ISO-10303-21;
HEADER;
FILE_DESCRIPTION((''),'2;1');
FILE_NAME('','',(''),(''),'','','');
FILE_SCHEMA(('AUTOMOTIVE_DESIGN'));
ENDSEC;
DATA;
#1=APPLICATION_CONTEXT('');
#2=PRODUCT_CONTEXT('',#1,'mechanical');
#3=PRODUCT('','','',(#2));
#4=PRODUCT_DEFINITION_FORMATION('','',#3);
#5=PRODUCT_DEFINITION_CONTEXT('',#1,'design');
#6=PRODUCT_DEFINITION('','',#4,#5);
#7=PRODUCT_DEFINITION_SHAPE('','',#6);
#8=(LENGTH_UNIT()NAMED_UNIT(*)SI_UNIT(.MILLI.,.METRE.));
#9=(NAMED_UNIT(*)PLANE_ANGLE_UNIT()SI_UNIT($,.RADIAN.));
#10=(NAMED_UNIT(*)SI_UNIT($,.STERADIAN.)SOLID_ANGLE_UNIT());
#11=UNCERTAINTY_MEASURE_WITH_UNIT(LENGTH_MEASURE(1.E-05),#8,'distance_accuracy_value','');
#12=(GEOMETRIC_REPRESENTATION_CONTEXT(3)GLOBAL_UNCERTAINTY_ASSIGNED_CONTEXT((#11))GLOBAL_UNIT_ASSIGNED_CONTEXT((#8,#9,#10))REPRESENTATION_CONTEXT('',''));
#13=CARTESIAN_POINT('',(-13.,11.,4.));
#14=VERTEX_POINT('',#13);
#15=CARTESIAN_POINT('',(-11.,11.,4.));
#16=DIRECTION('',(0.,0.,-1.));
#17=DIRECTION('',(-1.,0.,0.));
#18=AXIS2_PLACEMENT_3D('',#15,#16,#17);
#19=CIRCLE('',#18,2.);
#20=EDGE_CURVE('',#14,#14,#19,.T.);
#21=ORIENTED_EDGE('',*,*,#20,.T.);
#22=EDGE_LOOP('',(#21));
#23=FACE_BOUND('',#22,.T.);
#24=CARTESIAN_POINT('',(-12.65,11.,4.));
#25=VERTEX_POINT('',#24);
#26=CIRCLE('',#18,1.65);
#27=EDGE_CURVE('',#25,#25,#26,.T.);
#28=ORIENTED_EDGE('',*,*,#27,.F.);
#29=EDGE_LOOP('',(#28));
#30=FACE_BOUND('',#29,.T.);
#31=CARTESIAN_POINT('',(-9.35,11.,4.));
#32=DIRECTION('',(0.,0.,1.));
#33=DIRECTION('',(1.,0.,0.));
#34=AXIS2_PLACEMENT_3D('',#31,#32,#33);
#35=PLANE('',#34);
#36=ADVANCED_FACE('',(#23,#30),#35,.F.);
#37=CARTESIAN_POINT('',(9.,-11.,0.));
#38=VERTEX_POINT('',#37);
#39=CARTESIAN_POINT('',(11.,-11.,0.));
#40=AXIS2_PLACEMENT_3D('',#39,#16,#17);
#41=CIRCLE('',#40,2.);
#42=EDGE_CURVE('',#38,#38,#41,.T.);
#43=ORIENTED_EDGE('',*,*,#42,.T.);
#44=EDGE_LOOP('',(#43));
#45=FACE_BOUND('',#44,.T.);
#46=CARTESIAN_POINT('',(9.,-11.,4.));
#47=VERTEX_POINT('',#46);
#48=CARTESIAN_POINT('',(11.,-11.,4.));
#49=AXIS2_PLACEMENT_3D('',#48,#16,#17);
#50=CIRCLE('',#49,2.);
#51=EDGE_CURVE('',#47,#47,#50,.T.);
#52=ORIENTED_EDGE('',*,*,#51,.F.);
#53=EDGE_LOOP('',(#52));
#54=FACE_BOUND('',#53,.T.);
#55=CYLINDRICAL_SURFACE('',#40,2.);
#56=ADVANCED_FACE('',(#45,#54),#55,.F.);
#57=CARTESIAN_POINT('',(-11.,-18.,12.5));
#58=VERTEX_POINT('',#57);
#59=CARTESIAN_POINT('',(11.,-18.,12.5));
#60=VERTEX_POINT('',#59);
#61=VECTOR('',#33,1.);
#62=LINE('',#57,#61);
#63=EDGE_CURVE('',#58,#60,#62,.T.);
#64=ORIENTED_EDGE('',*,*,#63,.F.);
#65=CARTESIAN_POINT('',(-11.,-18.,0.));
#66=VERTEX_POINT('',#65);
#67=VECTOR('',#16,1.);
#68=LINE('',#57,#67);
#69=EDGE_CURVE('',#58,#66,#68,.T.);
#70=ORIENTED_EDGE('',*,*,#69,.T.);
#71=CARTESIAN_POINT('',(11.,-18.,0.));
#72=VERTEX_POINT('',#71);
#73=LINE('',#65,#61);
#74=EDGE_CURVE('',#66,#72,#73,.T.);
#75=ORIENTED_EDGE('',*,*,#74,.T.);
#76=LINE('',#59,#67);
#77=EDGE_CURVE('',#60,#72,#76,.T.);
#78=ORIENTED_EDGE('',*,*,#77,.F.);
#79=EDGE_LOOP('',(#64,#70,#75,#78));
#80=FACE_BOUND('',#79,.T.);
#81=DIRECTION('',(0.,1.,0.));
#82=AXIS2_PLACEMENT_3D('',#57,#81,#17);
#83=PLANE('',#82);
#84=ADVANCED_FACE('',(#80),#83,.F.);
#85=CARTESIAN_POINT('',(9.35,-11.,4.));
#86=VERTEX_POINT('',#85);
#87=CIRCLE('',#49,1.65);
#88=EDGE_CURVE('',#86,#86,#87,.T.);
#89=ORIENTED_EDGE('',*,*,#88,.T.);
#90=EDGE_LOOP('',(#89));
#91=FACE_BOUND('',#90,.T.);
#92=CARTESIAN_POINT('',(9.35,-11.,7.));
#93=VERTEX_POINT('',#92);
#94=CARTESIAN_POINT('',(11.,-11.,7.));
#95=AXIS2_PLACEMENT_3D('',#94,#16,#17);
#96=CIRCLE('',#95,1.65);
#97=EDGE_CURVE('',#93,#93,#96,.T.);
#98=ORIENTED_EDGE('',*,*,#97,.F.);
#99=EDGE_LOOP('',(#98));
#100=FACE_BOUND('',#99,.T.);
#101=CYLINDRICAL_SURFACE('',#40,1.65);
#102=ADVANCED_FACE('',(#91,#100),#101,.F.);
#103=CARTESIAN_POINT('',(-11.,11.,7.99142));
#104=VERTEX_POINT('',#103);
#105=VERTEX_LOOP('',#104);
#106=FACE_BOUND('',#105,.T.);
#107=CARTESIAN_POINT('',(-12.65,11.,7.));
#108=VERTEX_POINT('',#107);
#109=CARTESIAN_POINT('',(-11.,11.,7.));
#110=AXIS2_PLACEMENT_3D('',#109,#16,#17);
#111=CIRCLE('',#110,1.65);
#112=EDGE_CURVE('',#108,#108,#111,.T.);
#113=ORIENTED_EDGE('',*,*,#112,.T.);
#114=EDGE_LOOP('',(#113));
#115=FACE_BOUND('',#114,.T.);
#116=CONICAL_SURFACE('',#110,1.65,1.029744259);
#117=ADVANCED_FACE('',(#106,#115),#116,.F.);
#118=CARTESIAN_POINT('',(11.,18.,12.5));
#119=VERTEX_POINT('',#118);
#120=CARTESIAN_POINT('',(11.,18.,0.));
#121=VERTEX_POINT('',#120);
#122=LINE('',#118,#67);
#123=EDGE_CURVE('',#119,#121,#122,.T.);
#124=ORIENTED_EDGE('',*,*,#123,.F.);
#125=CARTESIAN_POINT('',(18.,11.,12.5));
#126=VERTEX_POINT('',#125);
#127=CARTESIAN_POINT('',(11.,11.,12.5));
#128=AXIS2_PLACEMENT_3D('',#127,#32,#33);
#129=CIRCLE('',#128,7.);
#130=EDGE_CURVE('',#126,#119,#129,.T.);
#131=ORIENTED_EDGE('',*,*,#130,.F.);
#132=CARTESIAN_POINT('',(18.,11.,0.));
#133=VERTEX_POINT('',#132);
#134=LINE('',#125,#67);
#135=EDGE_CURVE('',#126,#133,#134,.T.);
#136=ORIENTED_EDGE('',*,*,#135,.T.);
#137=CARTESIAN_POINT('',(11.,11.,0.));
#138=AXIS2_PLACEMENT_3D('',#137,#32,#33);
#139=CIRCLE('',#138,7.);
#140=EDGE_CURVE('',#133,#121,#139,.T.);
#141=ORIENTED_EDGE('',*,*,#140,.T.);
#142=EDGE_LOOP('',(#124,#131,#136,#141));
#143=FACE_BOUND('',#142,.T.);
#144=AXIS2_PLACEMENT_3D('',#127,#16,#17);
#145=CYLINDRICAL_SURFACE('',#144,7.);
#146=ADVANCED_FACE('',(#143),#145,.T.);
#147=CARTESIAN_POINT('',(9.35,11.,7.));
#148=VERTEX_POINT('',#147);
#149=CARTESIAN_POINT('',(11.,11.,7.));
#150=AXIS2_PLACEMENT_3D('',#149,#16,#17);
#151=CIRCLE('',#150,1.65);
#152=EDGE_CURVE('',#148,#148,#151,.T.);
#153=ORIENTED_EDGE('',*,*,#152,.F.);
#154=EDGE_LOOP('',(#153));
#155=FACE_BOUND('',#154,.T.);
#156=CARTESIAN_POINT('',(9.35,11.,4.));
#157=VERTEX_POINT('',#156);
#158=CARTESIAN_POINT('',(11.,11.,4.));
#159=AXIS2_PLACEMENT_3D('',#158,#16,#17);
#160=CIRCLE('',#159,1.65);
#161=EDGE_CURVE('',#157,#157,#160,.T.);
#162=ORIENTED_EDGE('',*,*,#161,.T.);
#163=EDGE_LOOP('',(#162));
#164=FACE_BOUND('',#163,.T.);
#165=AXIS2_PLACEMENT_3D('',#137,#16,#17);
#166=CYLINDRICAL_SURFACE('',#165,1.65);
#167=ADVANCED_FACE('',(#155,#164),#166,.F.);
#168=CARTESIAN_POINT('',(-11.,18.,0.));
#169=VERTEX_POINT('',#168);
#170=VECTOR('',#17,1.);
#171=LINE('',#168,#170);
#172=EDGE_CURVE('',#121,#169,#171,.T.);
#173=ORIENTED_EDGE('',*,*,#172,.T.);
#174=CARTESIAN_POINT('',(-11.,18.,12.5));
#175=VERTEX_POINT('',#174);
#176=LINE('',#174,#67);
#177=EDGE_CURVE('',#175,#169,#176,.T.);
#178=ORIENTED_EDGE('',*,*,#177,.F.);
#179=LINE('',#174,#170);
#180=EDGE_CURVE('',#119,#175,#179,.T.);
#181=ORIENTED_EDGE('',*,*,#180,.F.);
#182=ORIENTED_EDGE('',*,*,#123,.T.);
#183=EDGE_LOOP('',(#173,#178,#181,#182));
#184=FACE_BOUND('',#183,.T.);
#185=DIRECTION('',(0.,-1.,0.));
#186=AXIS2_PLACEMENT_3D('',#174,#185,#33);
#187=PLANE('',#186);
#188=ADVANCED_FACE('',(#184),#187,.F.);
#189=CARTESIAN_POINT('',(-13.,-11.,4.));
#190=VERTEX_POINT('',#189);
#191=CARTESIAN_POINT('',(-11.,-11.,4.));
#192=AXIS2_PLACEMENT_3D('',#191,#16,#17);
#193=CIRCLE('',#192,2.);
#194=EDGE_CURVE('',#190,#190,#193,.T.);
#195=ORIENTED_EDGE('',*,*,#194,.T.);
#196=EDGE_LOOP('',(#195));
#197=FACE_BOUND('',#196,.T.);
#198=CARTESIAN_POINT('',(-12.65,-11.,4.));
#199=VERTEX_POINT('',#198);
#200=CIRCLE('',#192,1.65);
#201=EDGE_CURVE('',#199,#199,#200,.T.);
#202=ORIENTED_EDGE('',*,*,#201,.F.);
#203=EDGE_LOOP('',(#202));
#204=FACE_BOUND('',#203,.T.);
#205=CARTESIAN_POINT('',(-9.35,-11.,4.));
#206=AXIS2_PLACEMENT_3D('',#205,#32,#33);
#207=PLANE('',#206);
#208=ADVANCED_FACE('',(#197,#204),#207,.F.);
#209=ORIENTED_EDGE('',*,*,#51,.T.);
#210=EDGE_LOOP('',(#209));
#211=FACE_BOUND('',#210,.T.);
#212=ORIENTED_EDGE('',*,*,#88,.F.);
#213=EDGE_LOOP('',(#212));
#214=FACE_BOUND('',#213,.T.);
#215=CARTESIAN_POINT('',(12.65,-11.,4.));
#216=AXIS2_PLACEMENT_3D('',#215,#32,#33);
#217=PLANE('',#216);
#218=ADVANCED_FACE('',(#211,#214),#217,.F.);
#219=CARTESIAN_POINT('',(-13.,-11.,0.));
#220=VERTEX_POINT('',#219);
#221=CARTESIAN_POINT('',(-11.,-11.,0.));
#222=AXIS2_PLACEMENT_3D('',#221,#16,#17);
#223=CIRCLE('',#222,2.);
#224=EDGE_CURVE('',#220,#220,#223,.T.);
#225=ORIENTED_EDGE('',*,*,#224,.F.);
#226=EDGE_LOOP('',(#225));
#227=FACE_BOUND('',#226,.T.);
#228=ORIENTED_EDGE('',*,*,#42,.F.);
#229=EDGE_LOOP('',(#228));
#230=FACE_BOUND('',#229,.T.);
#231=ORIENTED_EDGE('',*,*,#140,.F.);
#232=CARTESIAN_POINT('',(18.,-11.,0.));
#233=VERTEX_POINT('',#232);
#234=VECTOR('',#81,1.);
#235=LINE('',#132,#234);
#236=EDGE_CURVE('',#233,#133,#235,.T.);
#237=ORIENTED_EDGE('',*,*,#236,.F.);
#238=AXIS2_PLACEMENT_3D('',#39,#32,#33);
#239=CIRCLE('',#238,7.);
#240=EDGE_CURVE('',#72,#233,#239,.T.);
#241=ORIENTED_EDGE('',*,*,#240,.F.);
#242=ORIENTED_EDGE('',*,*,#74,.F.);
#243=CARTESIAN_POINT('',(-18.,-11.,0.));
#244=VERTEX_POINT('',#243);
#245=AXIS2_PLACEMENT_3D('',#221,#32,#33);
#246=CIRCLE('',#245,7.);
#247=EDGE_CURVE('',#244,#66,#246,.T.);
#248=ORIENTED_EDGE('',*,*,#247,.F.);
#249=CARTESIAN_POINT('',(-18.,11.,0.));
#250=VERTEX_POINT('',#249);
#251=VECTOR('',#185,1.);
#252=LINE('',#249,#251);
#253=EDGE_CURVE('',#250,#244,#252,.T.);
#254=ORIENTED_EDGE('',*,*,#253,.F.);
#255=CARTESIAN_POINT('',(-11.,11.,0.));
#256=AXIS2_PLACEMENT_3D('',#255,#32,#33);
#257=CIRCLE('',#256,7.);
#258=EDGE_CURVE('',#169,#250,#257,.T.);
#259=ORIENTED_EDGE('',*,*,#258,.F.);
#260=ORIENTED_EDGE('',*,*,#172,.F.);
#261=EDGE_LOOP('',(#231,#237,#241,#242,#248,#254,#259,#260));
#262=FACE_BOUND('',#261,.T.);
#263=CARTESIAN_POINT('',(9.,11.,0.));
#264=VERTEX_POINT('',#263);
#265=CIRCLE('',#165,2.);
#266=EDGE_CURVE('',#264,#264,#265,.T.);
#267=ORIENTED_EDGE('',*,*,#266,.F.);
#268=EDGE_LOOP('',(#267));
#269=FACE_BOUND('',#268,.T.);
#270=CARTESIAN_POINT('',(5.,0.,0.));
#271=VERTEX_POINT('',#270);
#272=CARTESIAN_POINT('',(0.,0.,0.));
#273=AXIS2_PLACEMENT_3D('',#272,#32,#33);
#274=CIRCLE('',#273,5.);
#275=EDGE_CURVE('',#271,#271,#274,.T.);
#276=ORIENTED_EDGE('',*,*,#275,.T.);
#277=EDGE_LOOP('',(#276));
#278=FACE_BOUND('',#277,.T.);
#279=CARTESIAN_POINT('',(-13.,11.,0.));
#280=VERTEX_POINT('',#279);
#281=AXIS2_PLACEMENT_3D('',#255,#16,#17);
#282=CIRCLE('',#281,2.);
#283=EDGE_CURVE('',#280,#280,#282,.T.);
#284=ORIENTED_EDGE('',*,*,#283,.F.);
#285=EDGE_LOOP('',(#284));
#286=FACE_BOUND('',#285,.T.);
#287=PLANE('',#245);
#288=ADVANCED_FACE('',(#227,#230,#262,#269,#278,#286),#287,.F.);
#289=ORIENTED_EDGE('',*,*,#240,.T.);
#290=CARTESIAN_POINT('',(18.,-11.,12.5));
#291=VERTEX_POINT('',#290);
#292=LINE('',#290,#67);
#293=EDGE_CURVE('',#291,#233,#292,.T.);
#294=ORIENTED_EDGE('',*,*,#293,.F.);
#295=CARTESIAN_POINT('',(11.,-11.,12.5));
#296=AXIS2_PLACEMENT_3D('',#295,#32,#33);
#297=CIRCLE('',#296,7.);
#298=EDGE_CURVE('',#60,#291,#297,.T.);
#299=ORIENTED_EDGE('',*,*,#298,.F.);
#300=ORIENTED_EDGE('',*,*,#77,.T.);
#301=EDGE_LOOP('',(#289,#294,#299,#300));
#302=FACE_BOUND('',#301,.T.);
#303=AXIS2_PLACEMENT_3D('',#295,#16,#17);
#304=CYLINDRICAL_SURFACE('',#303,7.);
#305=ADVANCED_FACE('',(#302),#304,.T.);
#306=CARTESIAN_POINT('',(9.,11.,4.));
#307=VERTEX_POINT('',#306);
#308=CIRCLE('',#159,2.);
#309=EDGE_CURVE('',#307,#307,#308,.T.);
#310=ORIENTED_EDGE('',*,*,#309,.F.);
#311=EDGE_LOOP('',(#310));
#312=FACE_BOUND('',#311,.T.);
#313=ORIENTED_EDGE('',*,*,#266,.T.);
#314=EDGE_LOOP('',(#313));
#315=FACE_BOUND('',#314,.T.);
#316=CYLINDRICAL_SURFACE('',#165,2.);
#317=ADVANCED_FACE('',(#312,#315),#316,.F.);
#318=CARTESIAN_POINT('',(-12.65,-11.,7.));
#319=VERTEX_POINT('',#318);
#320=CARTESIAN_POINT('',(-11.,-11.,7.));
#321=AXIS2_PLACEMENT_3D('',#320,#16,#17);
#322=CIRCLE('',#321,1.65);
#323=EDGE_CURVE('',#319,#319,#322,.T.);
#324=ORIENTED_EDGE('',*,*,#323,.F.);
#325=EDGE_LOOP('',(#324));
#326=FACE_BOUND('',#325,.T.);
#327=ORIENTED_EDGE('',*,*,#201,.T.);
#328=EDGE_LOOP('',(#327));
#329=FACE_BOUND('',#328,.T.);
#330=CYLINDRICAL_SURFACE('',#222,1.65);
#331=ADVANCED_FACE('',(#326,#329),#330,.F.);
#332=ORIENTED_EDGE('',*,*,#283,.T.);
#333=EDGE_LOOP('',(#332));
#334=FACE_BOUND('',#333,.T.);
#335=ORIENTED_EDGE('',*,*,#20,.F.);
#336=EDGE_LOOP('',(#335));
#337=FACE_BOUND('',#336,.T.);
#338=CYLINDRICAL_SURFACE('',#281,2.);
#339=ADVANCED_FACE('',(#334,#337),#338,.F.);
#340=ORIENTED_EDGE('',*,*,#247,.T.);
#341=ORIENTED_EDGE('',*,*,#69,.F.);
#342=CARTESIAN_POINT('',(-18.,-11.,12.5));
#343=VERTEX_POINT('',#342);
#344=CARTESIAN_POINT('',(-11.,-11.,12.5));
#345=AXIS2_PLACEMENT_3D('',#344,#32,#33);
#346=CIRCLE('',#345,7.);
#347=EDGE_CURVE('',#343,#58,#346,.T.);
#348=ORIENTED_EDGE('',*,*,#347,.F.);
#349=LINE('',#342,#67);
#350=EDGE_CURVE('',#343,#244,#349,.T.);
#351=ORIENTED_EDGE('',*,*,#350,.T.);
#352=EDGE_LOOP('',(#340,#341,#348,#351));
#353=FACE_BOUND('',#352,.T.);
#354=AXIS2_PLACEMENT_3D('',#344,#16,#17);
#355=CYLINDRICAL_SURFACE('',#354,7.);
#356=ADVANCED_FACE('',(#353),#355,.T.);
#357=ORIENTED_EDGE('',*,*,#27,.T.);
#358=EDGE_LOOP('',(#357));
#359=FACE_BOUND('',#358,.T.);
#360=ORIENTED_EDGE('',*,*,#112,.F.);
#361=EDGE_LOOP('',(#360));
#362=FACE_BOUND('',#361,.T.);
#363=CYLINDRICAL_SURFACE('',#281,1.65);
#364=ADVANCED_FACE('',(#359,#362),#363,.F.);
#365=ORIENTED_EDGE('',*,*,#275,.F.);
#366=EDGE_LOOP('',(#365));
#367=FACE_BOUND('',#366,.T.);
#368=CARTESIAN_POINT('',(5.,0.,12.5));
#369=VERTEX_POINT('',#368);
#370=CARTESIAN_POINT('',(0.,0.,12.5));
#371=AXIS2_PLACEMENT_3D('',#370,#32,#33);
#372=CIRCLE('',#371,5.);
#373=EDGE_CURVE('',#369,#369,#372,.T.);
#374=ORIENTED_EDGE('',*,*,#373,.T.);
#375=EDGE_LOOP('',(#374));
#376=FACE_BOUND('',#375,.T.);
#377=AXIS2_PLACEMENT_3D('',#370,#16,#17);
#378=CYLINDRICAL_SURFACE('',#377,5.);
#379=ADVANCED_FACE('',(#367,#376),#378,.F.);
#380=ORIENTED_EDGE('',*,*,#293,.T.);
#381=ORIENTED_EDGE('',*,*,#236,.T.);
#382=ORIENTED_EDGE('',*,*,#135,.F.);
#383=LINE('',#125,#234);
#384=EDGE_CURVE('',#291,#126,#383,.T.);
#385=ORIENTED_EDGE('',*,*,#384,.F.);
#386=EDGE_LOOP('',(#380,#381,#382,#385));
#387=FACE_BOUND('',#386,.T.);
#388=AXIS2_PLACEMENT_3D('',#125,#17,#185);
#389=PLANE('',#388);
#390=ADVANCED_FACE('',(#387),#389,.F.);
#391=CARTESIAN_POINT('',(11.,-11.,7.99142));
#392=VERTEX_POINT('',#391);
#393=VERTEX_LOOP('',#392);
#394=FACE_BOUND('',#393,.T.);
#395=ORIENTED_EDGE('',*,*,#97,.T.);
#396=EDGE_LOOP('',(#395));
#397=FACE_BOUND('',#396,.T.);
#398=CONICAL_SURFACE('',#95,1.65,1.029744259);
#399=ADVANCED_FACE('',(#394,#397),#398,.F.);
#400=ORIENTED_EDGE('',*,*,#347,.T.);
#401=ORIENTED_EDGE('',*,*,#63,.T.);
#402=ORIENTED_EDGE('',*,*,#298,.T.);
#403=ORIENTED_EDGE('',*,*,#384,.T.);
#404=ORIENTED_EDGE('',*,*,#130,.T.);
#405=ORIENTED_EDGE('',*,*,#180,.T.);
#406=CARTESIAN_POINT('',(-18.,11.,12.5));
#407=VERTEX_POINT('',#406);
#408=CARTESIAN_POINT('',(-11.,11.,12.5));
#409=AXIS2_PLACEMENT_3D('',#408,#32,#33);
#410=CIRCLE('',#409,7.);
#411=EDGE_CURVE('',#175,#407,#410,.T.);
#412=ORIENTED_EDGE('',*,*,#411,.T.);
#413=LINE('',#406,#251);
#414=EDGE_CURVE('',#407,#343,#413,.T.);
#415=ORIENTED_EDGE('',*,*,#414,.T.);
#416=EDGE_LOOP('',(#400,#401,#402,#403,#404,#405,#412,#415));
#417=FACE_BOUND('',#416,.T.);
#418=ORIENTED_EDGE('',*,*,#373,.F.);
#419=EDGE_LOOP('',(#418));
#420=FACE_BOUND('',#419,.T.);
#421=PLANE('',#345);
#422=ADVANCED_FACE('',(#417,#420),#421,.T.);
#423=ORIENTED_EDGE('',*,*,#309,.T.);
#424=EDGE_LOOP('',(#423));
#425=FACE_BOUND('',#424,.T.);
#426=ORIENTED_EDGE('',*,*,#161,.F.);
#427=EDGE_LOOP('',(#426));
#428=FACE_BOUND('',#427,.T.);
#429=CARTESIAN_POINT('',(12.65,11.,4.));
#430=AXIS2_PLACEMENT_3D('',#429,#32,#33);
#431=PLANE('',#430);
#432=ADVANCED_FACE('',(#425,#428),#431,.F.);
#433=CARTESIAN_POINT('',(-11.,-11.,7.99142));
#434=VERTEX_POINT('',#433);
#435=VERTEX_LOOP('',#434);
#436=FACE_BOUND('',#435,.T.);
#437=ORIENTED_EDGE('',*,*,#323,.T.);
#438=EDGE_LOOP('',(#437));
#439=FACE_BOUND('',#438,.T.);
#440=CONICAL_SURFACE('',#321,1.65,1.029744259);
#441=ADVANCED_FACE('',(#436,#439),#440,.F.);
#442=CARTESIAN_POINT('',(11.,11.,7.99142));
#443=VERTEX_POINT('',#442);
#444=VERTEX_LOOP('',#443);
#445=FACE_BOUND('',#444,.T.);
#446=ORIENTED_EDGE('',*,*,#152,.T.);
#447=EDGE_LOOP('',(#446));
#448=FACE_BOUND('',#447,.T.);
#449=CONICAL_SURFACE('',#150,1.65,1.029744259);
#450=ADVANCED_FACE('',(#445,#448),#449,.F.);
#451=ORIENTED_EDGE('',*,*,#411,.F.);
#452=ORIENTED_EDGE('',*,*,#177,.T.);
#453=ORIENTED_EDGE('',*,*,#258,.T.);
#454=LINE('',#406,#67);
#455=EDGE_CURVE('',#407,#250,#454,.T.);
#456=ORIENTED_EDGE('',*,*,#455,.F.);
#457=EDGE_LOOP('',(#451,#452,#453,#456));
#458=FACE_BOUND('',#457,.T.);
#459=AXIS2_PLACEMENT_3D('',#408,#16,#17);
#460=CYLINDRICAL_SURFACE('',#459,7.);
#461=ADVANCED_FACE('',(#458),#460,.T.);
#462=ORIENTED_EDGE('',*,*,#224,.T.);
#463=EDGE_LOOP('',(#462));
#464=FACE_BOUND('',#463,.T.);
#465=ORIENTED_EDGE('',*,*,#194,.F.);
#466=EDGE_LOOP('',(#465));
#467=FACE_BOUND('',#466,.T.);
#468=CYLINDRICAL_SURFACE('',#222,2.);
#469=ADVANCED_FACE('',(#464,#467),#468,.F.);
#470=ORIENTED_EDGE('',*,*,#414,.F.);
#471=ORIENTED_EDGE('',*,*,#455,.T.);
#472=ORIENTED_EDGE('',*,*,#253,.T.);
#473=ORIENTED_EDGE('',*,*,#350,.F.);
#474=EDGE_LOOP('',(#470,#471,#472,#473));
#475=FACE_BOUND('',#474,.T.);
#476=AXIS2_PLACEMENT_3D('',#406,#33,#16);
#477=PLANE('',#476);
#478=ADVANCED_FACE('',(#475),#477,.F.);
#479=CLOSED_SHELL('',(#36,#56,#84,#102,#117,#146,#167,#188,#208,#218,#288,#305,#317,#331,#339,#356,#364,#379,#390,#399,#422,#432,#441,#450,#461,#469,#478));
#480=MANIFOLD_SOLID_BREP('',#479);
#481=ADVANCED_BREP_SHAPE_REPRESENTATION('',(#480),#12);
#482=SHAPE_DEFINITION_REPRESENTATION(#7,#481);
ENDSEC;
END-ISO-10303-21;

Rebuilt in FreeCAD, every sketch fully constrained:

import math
import FreeCAD as App
import Part
import Sketcher

doc = App.newDocument("Part")
body = doc.addObject("PartDesign::Body", "Body")

# Sketch on XY plane
sketch1 = doc.addObject("Sketcher::SketchObject", "Sketch")
body.addObject(sketch1)
sketch1.AttachmentSupport = (doc.XY_Plane, [""])
sketch1.MapMode = "FlatFace"
sketch1.addGeometry(Part.LineSegment(App.Vector(11, 18, 0), App.Vector(-11, 18, 0)), False)
sketch1.addGeometry(Part.ArcOfCircle(Part.Circle(App.Vector(-11, 11, 0), App.Vector(0, 0, 1), 7), math.radians(90), math.radians(180)), False)
sketch1.addGeometry(Part.LineSegment(App.Vector(-18, 11, 0), App.Vector(-18, -11, 0)), False)
sketch1.addGeometry(Part.ArcOfCircle(Part.Circle(App.Vector(-11, -11, 0), App.Vector(0, 0, 1), 7), math.radians(-180), math.radians(-90)), False)
sketch1.addGeometry(Part.LineSegment(App.Vector(-11, -18, 0), App.Vector(11, -18, 0)), False)
sketch1.addGeometry(Part.ArcOfCircle(Part.Circle(App.Vector(11, -11, 0), App.Vector(0, 0, 1), 7), math.radians(-90), math.radians(0)), False)
sketch1.addGeometry(Part.LineSegment(App.Vector(18, -11, 0), App.Vector(18, 11, 0)), False)
sketch1.addGeometry(Part.ArcOfCircle(Part.Circle(App.Vector(11, 11, 0), App.Vector(0, 0, 1), 7), math.radians(0), math.radians(90)), False)
sketch1.addGeometry(Part.Circle(App.Vector(0, 0, 0), App.Vector(0, 0, 1), 5), False)
sketch1.addConstraint(Sketcher.Constraint("Tangent", 0, 2, 1, 1))
sketch1.addConstraint(Sketcher.Constraint("Tangent", 1, 2, 2, 1))
sketch1.addConstraint(Sketcher.Constraint("Tangent", 2, 2, 3, 1))
sketch1.addConstraint(Sketcher.Constraint("Tangent", 3, 2, 4, 1))
sketch1.addConstraint(Sketcher.Constraint("Tangent", 4, 2, 5, 1))
sketch1.addConstraint(Sketcher.Constraint("Tangent", 5, 2, 6, 1))
sketch1.addConstraint(Sketcher.Constraint("Tangent", 6, 2, 7, 1))
sketch1.addConstraint(Sketcher.Constraint("Tangent", 7, 2, 0, 1))
sketch1.addConstraint(Sketcher.Constraint("Horizontal", 0))
sketch1.addConstraint(Sketcher.Constraint("Vertical", 2))
sketch1.addConstraint(Sketcher.Constraint("Horizontal", 4))
sketch1.addConstraint(Sketcher.Constraint("Vertical", 6))
sketch1.addConstraint(Sketcher.Constraint("Coincident", 8, 3, -1, 1))
sketch1.addConstraint(Sketcher.Constraint("Equal", 1, 3))
sketch1.addConstraint(Sketcher.Constraint("Equal", 3, 5))
sketch1.addConstraint(Sketcher.Constraint("Equal", 5, 7))
sketch1.addConstraint(Sketcher.Constraint("Symmetric", 1, 3, 5, 3, -1, 1))
sketch1.addConstraint(Sketcher.Constraint("Equal", 4, 2))
sketch1.addConstraint(Sketcher.Constraint("Diameter", 8, 10.0))
sketch1.addConstraint(Sketcher.Constraint("Radius", 1, 7.0))
sketch1.addConstraint(Sketcher.Constraint("DistanceX", 0, 2, 0, 1, 22.0))
pad1 = doc.addObject("PartDesign::Pad", "Pad")
body.addObject(pad1)
pad1.Profile = sketch1
pad1.Length = 12.5

# Sketch on XY plane
sketch2 = doc.addObject("Sketcher::SketchObject", "Sketch001")
body.addObject(sketch2)
sketch2.AttachmentSupport = (doc.XY_Plane, [""])
sketch2.MapMode = "FlatFace"
sketch2.addGeometry(Part.Circle(App.Vector(-11, -11, 0), App.Vector(0, 0, 1), 1.6), False)
sketch2.addGeometry(Part.Circle(App.Vector(0, 0, 0), App.Vector(0, 0, 1), 1.6), False)
sketch2.addGeometry(Part.Circle(App.Vector(-11, 11, 0), App.Vector(0, 0, 1), 1.6), False)
sketch2.addGeometry(Part.Circle(App.Vector(11, -11, 0), App.Vector(0, 0, 1), 1.6), False)
sketch2.addGeometry(Part.Circle(App.Vector(11, 11, 0), App.Vector(0, 0, 1), 1.6), False)
sketch2.addConstraint(Sketcher.Constraint("Coincident", 1, 3, -1, 1))
sketch2.addConstraint(Sketcher.Constraint("Equal", 0, 1))
sketch2.addConstraint(Sketcher.Constraint("Equal", 1, 2))
sketch2.addConstraint(Sketcher.Constraint("Equal", 2, 3))
sketch2.addConstraint(Sketcher.Constraint("Equal", 3, 4))
sketch2.addConstraint(Sketcher.Constraint("Symmetric", 2, 3, 3, 3, -1, 1))
sketch2.addConstraint(Sketcher.Constraint("Symmetric", 0, 3, 4, 3, -1, 1))
sketch2.addConstraint(Sketcher.Constraint("Symmetric", 0, 3, 3, 3, -2))
sketch2.addConstraint(Sketcher.Constraint("Diameter", 0, 3.3))
sketch2.addConstraint(Sketcher.Constraint("DistanceX", 0, 3, -1, 1, 11.0))
sketch2.addConstraint(Sketcher.Constraint("DistanceY", 0, 3, -1, 1, 11.0))
doc.recompute()
hole = doc.addObject("PartDesign::Hole", "Hole")
body.addObject(hole)
hole.Profile = sketch2
hole.ThreadType = "None"
hole.Diameter = 3.3
hole.DepthType = "Dimension"
hole.Depth = 7
hole.DrillPoint = "Angled"
hole.DrillPointAngle = 118
hole.HoleCutType = "Counterbore"
hole.HoleCutDiameter = 4
hole.HoleCutDepth = 4
hole.Reversed = True

doc.recompute()
